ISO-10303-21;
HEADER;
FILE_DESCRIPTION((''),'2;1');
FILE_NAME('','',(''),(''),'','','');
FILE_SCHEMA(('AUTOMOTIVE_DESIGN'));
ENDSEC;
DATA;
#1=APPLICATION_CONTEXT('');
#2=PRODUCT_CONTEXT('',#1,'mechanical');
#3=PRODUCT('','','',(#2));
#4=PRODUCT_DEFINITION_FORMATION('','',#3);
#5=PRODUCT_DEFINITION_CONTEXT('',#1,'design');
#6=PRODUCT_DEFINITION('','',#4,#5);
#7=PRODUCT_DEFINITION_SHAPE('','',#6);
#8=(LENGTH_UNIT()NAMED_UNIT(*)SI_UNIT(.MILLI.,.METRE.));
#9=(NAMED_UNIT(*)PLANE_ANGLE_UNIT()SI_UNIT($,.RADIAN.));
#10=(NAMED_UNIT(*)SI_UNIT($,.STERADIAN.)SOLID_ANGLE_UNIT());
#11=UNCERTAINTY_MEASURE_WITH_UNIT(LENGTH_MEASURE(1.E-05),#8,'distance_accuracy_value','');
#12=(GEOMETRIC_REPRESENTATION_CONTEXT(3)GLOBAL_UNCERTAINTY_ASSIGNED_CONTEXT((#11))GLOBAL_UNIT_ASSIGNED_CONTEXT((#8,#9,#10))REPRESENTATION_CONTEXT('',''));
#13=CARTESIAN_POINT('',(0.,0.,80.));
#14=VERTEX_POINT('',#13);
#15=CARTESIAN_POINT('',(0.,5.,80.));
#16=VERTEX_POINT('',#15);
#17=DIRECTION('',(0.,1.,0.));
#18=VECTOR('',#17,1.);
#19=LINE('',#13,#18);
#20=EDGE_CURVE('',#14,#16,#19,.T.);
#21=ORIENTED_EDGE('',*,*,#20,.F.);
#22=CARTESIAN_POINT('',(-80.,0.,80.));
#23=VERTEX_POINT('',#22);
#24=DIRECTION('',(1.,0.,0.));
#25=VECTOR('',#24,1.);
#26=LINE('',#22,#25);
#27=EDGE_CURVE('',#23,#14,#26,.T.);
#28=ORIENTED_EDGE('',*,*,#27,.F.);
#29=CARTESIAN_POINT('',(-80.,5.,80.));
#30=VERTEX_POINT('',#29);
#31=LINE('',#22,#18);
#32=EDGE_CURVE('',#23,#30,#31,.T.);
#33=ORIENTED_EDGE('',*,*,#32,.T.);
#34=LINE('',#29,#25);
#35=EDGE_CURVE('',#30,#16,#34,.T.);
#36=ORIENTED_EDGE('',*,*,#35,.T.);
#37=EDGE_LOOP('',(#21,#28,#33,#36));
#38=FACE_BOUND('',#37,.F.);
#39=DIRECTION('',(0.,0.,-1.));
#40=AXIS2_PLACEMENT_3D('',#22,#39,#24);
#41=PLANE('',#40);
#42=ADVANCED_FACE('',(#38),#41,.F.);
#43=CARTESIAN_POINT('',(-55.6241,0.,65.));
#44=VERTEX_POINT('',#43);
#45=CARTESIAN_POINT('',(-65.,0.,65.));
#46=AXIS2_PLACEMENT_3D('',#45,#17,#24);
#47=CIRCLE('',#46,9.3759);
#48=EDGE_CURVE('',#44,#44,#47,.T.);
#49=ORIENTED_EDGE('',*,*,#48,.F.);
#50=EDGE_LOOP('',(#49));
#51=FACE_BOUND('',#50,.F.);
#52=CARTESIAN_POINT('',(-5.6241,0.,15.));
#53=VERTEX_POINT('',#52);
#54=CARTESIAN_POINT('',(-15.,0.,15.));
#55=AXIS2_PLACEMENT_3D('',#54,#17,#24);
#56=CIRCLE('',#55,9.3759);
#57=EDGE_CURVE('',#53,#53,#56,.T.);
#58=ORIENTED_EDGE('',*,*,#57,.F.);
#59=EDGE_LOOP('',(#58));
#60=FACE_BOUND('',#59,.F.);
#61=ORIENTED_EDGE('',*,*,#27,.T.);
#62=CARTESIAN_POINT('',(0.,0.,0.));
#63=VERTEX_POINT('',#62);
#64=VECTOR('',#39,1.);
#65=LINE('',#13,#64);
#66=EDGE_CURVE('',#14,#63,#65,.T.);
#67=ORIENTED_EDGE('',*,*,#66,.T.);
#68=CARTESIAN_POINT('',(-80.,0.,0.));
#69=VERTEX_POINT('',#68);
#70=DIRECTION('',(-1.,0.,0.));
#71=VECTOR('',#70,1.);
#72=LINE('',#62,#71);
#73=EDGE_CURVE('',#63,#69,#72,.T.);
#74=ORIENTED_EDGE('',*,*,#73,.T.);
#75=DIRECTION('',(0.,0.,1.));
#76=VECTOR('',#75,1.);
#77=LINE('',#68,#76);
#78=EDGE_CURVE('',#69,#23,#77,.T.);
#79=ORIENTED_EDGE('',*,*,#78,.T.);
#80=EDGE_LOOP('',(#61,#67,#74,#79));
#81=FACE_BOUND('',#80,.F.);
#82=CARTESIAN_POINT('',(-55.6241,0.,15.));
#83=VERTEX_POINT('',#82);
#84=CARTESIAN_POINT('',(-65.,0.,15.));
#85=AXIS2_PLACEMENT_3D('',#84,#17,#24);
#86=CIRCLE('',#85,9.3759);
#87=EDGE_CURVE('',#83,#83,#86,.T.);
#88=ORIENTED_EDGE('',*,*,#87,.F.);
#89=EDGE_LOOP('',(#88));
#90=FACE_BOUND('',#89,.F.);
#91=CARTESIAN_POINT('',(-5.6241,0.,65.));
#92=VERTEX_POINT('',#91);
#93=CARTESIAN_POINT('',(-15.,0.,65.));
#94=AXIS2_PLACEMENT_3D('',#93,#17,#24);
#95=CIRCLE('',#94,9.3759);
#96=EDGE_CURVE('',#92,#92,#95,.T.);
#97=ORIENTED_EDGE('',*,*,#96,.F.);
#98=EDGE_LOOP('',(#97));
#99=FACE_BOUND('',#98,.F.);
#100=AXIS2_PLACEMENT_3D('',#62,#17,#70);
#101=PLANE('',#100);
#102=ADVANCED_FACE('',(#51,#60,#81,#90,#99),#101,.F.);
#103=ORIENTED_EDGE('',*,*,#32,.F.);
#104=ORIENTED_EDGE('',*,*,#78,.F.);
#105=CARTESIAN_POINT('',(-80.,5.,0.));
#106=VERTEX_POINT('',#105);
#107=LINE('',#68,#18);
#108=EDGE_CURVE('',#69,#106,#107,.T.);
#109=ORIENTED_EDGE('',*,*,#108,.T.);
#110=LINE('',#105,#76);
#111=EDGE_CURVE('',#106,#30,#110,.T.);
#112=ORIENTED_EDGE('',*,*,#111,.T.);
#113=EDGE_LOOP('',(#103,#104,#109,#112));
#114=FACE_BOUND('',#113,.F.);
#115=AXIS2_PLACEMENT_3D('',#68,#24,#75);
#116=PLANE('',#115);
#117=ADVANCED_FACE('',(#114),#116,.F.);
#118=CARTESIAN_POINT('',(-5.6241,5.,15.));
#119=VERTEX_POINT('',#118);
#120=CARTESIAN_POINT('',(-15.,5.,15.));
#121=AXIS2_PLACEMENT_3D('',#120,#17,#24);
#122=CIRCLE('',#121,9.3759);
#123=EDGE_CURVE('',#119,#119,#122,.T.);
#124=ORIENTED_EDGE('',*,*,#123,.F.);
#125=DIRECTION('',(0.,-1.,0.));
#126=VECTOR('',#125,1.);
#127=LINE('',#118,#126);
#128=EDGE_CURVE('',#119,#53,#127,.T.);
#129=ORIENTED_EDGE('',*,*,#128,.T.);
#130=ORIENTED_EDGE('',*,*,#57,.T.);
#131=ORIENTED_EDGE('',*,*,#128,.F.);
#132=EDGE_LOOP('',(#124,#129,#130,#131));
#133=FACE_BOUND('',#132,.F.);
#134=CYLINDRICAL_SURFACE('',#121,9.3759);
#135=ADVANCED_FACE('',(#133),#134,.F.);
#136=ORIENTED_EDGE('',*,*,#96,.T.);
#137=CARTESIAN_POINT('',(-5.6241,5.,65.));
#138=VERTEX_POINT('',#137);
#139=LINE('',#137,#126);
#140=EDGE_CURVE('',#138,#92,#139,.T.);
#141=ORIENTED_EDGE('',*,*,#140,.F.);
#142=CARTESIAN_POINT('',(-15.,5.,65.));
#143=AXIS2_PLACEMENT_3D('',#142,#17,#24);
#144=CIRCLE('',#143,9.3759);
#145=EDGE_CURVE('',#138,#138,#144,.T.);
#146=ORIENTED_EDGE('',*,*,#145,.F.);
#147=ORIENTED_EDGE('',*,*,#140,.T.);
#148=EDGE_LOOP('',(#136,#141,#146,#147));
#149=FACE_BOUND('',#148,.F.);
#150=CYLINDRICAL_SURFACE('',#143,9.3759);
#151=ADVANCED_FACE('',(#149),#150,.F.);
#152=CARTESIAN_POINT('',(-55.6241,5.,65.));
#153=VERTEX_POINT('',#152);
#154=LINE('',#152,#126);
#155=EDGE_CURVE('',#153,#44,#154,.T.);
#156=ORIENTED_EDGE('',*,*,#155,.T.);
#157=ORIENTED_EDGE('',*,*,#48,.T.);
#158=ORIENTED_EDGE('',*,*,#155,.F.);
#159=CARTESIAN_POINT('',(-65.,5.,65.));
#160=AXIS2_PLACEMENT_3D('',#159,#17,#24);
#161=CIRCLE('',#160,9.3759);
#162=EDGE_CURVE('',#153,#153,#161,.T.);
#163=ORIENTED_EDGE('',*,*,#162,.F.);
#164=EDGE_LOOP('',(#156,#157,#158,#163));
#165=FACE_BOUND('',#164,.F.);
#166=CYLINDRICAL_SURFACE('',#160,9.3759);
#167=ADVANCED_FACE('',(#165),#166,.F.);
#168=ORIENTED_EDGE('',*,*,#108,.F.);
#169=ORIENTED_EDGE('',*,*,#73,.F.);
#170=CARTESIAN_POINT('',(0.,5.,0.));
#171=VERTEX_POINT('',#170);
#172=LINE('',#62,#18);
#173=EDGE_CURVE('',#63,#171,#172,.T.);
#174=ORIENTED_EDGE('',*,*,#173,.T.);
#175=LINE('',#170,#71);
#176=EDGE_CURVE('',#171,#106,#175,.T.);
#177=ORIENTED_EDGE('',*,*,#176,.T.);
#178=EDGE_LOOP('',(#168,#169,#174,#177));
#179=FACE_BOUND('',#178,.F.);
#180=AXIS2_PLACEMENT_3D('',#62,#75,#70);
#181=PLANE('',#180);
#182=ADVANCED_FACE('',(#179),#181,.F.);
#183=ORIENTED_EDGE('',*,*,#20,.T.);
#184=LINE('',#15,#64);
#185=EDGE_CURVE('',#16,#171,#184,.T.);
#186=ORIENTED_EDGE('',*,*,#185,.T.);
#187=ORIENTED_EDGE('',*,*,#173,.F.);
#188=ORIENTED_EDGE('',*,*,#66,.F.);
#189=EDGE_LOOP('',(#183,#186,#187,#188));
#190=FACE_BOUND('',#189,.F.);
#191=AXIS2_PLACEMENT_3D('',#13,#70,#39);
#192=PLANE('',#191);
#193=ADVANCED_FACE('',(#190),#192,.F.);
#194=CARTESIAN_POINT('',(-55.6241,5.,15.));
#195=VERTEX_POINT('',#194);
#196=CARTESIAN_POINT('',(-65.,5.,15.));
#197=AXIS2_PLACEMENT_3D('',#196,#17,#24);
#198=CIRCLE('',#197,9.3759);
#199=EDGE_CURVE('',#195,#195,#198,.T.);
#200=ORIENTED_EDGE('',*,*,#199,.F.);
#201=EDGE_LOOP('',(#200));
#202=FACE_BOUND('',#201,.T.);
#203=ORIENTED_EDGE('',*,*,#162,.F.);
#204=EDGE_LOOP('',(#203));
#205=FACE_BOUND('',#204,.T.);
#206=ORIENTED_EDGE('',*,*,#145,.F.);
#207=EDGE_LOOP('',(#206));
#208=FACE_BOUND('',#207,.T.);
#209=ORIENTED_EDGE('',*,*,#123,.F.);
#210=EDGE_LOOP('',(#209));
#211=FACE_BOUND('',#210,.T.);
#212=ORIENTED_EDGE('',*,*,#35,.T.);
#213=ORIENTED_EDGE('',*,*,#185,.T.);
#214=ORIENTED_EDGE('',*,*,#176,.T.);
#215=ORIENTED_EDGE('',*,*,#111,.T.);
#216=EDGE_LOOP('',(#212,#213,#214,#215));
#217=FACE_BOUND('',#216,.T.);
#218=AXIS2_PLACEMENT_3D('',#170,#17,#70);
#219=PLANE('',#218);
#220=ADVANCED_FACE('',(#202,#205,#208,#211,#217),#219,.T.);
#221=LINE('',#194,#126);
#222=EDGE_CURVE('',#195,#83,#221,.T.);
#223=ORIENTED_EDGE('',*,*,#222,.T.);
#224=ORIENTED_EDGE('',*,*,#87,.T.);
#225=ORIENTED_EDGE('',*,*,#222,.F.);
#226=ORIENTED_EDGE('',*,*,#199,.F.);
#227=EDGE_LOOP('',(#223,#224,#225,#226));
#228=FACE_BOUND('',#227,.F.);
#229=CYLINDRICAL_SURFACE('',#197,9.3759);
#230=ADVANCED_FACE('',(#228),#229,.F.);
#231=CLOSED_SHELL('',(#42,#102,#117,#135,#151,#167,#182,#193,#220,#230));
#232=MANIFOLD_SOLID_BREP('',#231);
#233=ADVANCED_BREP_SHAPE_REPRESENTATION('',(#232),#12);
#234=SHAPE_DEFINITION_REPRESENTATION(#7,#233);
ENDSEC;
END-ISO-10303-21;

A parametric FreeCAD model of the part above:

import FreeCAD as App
import Part
import Sketcher
from FreeCAD import Vector
Q = App.Units.Quantity

doc = App.newDocument("Part")
body = doc.addObject("PartDesign::Body", "Body")

sketch1 = body.newObject("Sketcher::SketchObject", "Sketch")
sketch1.AttachmentSupport = (doc.getObject("XZ_Plane"), [""])
sketch1.MapMode = "FlatFace"
sketch1.addGeometry(Part.LineSegment(Vector(-80, 0, 0), Vector(-80, 80, 0)), False)
sketch1.addGeometry(Part.LineSegment(Vector(-80, 80, 0), Vector(0, 80, 0)), False)
sketch1.addGeometry(Part.LineSegment(Vector(0, 80, 0), Vector(0, 0, 0)), False)
sketch1.addGeometry(Part.LineSegment(Vector(0, 0, 0), Vector(-80, 0, 0)), False)
sketch1.addConstraint(Sketcher.Constraint("Coincident", 0, 2, 1, 1))
sketch1.addConstraint(Sketcher.Constraint("Coincident", 1, 2, 2, 1))
sketch1.addConstraint(Sketcher.Constraint("Coincident", 2, 2, 3, 1))
sketch1.addConstraint(Sketcher.Constraint("Coincident", 3, 2, 0, 1))
sketch1.addConstraint(Sketcher.Constraint("Vertical", 0))
sketch1.addConstraint(Sketcher.Constraint("Horizontal", 1))
sketch1.addConstraint(Sketcher.Constraint("Vertical", 2))
sketch1.addConstraint(Sketcher.Constraint("Horizontal", 3))
sketch1.addConstraint(Sketcher.Constraint("Coincident", 2, 2, -1, 1))
sketch1.addConstraint(Sketcher.Constraint("Equal", 3, 0))
sketch1.addConstraint(Sketcher.Constraint("DistanceX", 1, 1, 1, 2, Q("80 mm")))
pad1 = body.newObject("PartDesign::Pad", "Pad")
pad1.Profile = sketch1
pad1.Length = 5
pad1.Reversed = True

sketch2 = body.newObject("Sketcher::SketchObject", "Sketch001")
sketch2.AttachmentSupport = (doc.getObject("XZ_Plane"), [""])
sketch2.MapMode = "FlatFace"
sketch2.AttachmentOffset = App.Placement(Vector(0, 0, -5), App.Rotation())
sketch2.addGeometry(Part.Circle(Vector(-65, 65, 0), Vector(0, 0, 1), 9.3759), False)
sketch2.addGeometry(Part.Circle(Vector(-65, 15, 0), Vector(0, 0, 1), 9.3759), False)
sketch2.addGeometry(Part.Circle(Vector(-15, 15, 0), Vector(0, 0, 1), 9.3759), False)
sketch2.addGeometry(Part.Circle(Vector(-15, 65, 0), Vector(0, 0, 1), 9.3759), False)
sketch2.addConstraint(Sketcher.Constraint("Equal", 0, 1))
sketch2.addConstraint(Sketcher.Constraint("Equal", 1, 2))
sketch2.addConstraint(Sketcher.Constraint("Equal", 2, 3))
sketch2.addConstraint(Sketcher.Constraint("Horizontal", 1, 3, 2, 3))
sketch2.addConstraint(Sketcher.Constraint("Horizontal", 0, 3, 3, 3))
sketch2.addConstraint(Sketcher.Constraint("Vertical", 0, 3, 1, 3))
sketch2.addConstraint(Sketcher.Constraint("Vertical", 2, 3, 3, 3))
sketch2.addConstraint(Sketcher.Constraint("DistanceY", -1, 1, 1, 3, Q("15 mm")))
sketch2.addConstraint(Sketcher.Constraint("DistanceX", 2, 3, -1, 1, Q("15 mm")))
sketch2.addConstraint(Sketcher.Constraint("DistanceY", 1, 3, 0, 3, Q("50 mm")))
sketch2.addConstraint(Sketcher.Constraint("DistanceX", 1, 3, 2, 3, Q("50 mm")))
sketch2.addConstraint(Sketcher.Constraint("Diameter", 0, Q("18.7518 mm")))
pocket1 = body.newObject("PartDesign::Pocket", "Pocket")
pocket1.Profile = sketch2
pocket1.Length = 5
pocket1.Reversed = True

doc.recompute()
